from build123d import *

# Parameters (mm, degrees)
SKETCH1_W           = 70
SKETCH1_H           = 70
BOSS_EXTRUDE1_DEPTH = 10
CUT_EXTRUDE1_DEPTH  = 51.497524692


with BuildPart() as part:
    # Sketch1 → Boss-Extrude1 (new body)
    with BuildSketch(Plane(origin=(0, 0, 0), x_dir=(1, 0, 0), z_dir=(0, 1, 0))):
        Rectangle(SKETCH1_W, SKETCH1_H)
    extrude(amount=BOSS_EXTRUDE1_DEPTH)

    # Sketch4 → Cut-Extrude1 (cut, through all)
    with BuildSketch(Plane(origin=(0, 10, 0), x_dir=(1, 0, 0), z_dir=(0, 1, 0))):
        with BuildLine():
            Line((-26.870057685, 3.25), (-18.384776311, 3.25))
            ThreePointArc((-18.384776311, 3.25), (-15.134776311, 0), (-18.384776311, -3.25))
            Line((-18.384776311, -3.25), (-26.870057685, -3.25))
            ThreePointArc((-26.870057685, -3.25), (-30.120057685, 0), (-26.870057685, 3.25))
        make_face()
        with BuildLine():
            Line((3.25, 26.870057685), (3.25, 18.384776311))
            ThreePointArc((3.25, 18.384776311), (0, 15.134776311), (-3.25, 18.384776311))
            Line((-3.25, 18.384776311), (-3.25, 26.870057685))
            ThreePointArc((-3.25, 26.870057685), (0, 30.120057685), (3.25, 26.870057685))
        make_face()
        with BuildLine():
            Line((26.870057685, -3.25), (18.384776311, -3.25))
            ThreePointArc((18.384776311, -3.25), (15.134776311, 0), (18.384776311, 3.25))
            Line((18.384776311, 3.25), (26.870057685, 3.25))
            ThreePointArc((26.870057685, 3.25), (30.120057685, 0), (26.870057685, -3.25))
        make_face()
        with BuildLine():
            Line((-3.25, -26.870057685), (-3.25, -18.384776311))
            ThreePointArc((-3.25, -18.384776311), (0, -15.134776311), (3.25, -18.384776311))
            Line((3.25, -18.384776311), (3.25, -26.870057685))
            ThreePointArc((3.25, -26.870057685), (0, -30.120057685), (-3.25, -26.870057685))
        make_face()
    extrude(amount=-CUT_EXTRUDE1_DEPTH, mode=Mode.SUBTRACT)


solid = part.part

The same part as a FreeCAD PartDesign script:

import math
import FreeCAD as App
import Part
import Sketcher

V = App.Vector
Q = App.Units.Quantity

doc = App.newDocument("Part")
body = doc.addObject("PartDesign::Body", "Body")

sketch1 = body.newObject("Sketcher::SketchObject", "Sketch")
sketch1.AttachmentSupport = (doc.getObject("XZ_Plane"), [""])
sketch1.MapMode = "FlatFace"
sketch1.addGeometry([
    Part.LineSegment(V(-35, -35, 0), V(-35, 35, 0)),
    Part.LineSegment(V(-35, 35, 0), V(35, 35, 0)),
    Part.LineSegment(V(35, 35, 0), V(35, -35, 0)),
    Part.LineSegment(V(35, -35, 0), V(-35, -35, 0)),
], False)
sketch1.addConstraint([
    Sketcher.Constraint("Coincident", 0, 2, 1, 1),
    Sketcher.Constraint("Coincident", 1, 2, 2, 1),
    Sketcher.Constraint("Coincident", 2, 2, 3, 1),
    Sketcher.Constraint("Coincident", 3, 2, 0, 1),
    Sketcher.Constraint("Vertical", 0),
    Sketcher.Constraint("Horizontal", 1),
    Sketcher.Constraint("Vertical", 2),
    Sketcher.Constraint("Horizontal", 3),
    Sketcher.Constraint("Symmetric", 0, 2, 2, 2, -1, 1),
    Sketcher.Constraint("Equal", 3, 0),
    Sketcher.Constraint("DistanceX", 1, 1, 1, 2, Q("70 mm")),
])
pad1 = body.newObject("PartDesign::Pad", "Pad")
pad1.Profile = sketch1
pad1.Length = 10
pad1.Reversed = True

sketch2 = body.newObject("Sketcher::SketchObject", "Sketch001")
sketch2.AttachmentSupport = (doc.getObject("XZ_Plane"), [""])
sketch2.MapMode = "FlatFace"
sketch2.AttachmentOffset = App.Placement(V(0, 0, -10), App.Rotation())
sketch2.addGeometry([
    Part.LineSegment(V(-18.4, -3.2, 0), V(-26.9, -3.2, 0)),
    Part.ArcOfCircle(Part.Circle(V(-26.9, 0, 0), V(0, 0, 1), 3.2), math.radians(90), math.radians(270)),
    Part.LineSegment(V(-26.9, 3.2, 0), V(-18.4, 3.2, 0)),
    Part.ArcOfCircle(Part.Circle(V(-18.4, 0, 0), V(0, 0, 1), 3.2), math.radians(-90), math.radians(90)),
    Part.LineSegment(V(3.2, -18.4, 0), V(3.2, -26.9, 0)),
    Part.ArcOfCircle(Part.Circle(V(0, -26.9, 0), V(0, 0, 1), 3.2), math.radians(180), math.radians(360)),
    Part.LineSegment(V(-3.2, -26.9, 0), V(-3.2, -18.4, 0)),
    Part.ArcOfCircle(Part.Circle(V(0, -18.4, 0), V(0, 0, 1), 3.2), math.radians(0), math.radians(180)),
    Part.LineSegment(V(18.4, 3.2, 0), V(26.9, 3.2, 0)),
    Part.ArcOfCircle(Part.Circle(V(26.9, 0, 0), V(0, 0, 1), 3.2), math.radians(-90), math.radians(90)),
    Part.LineSegment(V(26.9, -3.2, 0), V(18.4, -3.2, 0)),
    Part.ArcOfCircle(Part.Circle(V(18.4, 0, 0), V(0, 0, 1), 3.2), math.radians(90), math.radians(270)),
    Part.LineSegment(V(-3.2, 18.4, 0), V(-3.2, 26.9, 0)),
    Part.ArcOfCircle(Part.Circle(V(0, 26.9, 0), V(0, 0, 1), 3.2), math.radians(0), math.radians(180)),
    Part.LineSegment(V(3.2, 26.9, 0), V(3.2, 18.4, 0)),
    Part.ArcOfCircle(Part.Circle(V(0, 18.4, 0), V(0, 0, 1), 3.2), math.radians(180), math.radians(360)),
], False)
sketch2.addConstraint([
    Sketcher.Constraint("Tangent", 0, 2, 1, 2),
    Sketcher.Constraint("Tangent", 1, 1, 2, 1),
    Sketcher.Constraint("Tangent", 2, 2, 3, 2),
    Sketcher.Constraint("Tangent", 3, 1, 0, 1),
    Sketcher.Constraint("Tangent", 4, 2, 5, 2),
    Sketcher.Constraint("Tangent", 5, 1, 6, 1),
    Sketcher.Constraint("Tangent", 6, 2, 7, 2),
    Sketcher.Constraint("Tangent", 7, 1, 4, 1),
    Sketcher.Constraint("Tangent", 8, 2, 9, 2),
    Sketcher.Constraint("Tangent", 9, 1, 10, 1),
    Sketcher.Constraint("Tangent", 10, 2, 11, 2),
    Sketcher.Constraint("Tangent", 11, 1, 8, 1),
    Sketcher.Constraint("Tangent", 12, 2, 13, 2),
    Sketcher.Constraint("Tangent", 13, 1, 14, 1),
    Sketcher.Constraint("Tangent", 14, 2, 15, 2),
    Sketcher.Constraint("Tangent", 15, 1, 12, 1),
    Sketcher.Constraint("Horizontal", 0),
    Sketcher.Constraint("Horizontal", 2),
    Sketcher.Constraint("Vertical", 4),
    Sketcher.Constraint("Vertical", 6),
    Sketcher.Constraint("Horizontal", 8),
    Sketcher.Constraint("Horizontal", 10),
    Sketcher.Constraint("Vertical", 12),
    Sketcher.Constraint("Vertical", 14),
    Sketcher.Constraint("Equal", 3, 5),
    Sketcher.Constraint("Equal", 7, 9),
    Sketcher.Constraint("Equal", 11, 13),
    Sketcher.Constraint("Symmetric", 1, 3, 9, 3, -1, 1),
    Sketcher.Constraint("Symmetric", 5, 3, 13, 3, -1, 1),
    Sketcher.Constraint("Symmetric", 3, 3, 11, 3, -2),
    Sketcher.Constraint("Symmetric", 7, 3, 15, 3, -1),
    Sketcher.Constraint("Equal", 10, 4),
    Sketcher.Constraint("Radius", 1, Q("3.25 mm")),
    Sketcher.Constraint("DistanceX", 0, 2, 0, 1, Q("8.485281 mm")),
    Sketcher.Constraint("DistanceX", 1, 3, -1, 1, Q("26.870058 mm")),
    Sketcher.Constraint("DistanceY", 5, 3, -1, 1, Q("26.870058 mm")),
])
pocket1 = body.newObject("PartDesign::Pocket", "Pocket")
pocket1.Profile = sketch2
pocket1.Type = "ThroughAll"
pocket1.Reversed = True

doc.recompute()
